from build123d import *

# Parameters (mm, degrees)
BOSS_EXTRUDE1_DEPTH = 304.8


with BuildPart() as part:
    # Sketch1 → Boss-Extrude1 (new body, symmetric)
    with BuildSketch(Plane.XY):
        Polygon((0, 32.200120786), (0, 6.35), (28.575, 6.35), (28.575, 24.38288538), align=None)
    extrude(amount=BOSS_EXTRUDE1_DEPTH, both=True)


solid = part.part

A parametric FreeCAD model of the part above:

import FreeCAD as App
import Part
import Sketcher
Q = App.Units.Quantity


def add_polygon(sketch, points):
    """Adds a closed chain of lines whose ends are joined by coincident constraints."""
    first, n = sketch.GeometryCount, len(points)
    for a, b in zip(points, points[1:] + points[:1]):
        sketch.addGeometry(Part.LineSegment(App.Vector(*a, 0), App.Vector(*b, 0)), False)
    for i in range(n):
        sketch.addConstraint(Sketcher.Constraint("Coincident", first + i, 2, first + (i + 1) % n, 1))

doc = App.newDocument("Part")
body = doc.addObject("PartDesign::Body", "Body")

# Sketch on XY plane
sketch1 = body.newObject("Sketcher::SketchObject", "Sketch")
sketch1.AttachmentSupport = (doc.getObject("XY_Plane"), [""])
sketch1.MapMode = "FlatFace"
add_polygon(sketch1, [(0, 32), (0, 6), (29, 6), (29, 24)])  # lines 0-3
sketch1.addConstraint([
    Sketcher.Constraint("Vertical", 0),
    Sketcher.Constraint("Horizontal", 1),
    Sketcher.Constraint("Vertical", 2),
    Sketcher.Constraint("PointOnObject", 0, 2, -2),
    Sketcher.Constraint("Angle", 3, Q("164.7 deg")),
    Sketcher.Constraint("DistanceX", 1, 1, 1, 2, Q("1.125 in")),
    Sketcher.Constraint("DistanceY", -1, 1, 0, 2, Q("0.25 in")),
    Sketcher.Constraint("DistanceY", 0, 2, 0, 1, 25.850121),
])
pad1 = body.newObject("PartDesign::Pad", "Pad")
pad1.Profile = sketch1
pad1.Length = Q("24 in")
pad1.Midplane = True

doc.recompute()
